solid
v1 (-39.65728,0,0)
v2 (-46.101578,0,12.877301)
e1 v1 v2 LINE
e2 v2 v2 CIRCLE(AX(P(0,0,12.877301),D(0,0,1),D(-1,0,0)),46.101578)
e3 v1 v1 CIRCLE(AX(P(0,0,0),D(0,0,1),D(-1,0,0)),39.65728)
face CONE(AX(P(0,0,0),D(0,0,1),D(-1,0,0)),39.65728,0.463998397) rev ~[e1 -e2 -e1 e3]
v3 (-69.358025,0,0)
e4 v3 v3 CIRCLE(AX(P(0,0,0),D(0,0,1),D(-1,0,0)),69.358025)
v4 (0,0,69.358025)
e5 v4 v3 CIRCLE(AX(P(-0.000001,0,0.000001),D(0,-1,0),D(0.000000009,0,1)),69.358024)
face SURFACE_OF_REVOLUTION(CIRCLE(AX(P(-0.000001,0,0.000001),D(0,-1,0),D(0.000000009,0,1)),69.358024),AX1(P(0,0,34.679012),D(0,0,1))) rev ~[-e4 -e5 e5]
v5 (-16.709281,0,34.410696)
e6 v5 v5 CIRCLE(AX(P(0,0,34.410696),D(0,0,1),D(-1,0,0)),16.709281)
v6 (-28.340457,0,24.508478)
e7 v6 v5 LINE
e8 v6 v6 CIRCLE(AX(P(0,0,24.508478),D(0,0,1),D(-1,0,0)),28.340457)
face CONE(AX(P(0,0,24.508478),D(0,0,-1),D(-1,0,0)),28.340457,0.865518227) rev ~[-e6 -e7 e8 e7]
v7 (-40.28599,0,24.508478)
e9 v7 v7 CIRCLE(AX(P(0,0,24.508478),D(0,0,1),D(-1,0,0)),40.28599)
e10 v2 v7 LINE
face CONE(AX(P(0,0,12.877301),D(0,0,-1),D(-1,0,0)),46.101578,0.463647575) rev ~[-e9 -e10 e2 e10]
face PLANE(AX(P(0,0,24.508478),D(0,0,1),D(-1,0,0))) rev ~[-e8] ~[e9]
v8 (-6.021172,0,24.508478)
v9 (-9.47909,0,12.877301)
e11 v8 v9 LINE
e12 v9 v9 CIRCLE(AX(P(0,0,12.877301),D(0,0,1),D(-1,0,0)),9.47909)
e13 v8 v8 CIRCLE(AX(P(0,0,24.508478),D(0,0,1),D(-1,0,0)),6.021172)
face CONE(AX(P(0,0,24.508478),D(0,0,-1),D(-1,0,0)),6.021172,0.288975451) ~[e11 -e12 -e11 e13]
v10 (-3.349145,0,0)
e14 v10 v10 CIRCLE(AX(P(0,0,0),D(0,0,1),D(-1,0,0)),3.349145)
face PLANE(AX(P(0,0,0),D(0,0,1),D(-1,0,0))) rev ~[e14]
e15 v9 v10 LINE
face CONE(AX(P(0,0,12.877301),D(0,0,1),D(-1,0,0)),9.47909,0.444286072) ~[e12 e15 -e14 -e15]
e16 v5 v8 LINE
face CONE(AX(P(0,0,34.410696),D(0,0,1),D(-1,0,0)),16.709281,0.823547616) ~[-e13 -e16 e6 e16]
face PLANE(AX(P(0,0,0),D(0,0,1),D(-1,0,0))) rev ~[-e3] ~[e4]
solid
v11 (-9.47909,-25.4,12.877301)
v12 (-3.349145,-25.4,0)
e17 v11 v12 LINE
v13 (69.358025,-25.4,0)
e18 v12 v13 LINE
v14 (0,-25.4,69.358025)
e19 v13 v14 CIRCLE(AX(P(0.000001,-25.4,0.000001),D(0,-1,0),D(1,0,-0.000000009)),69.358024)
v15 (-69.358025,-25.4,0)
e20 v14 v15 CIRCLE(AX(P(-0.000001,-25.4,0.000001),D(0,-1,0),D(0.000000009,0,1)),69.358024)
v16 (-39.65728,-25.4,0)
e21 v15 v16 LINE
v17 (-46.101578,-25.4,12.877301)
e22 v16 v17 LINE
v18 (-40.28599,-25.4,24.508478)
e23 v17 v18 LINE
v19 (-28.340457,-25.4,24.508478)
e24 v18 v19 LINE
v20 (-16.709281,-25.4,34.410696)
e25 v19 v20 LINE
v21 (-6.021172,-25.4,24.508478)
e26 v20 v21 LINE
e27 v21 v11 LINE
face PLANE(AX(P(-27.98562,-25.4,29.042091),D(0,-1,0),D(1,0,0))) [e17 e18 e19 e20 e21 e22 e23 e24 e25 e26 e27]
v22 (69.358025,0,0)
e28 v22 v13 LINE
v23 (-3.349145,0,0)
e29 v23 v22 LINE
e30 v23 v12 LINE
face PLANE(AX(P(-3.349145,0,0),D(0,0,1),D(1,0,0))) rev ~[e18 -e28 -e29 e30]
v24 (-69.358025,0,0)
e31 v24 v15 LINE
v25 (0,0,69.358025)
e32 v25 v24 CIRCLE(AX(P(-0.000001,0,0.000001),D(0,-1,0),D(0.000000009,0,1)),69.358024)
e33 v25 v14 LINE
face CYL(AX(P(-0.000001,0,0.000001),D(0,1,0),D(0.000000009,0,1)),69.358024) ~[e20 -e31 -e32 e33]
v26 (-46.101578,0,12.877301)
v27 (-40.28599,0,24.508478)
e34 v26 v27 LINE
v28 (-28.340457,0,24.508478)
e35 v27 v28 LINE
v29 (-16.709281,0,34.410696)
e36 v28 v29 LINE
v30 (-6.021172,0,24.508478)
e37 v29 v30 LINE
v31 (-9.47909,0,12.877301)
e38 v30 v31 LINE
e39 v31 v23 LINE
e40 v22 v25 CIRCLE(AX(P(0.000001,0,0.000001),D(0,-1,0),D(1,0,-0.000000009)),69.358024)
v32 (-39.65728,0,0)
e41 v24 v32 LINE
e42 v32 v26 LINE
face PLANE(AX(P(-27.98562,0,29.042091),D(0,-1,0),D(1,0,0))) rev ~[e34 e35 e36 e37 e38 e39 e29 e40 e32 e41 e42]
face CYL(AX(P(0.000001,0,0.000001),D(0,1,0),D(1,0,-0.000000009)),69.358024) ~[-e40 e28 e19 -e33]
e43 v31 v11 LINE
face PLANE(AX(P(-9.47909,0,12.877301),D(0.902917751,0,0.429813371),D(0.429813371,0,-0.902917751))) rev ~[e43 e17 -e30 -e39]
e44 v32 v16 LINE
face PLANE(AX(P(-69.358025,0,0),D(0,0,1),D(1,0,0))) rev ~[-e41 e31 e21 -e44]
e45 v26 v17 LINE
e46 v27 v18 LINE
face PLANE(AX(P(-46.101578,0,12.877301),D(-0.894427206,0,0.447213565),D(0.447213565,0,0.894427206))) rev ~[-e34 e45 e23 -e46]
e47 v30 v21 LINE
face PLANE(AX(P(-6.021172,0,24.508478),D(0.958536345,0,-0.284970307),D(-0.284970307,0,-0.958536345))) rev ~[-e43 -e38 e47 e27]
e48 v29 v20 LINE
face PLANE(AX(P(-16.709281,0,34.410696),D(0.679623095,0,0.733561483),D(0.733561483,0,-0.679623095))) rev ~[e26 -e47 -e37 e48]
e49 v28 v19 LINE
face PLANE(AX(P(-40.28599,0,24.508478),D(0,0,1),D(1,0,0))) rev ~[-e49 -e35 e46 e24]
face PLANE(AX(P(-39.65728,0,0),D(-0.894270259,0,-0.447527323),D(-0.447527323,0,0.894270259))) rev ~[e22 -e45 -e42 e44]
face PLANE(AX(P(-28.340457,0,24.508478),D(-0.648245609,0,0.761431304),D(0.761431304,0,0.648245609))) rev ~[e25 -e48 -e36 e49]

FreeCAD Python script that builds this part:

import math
import FreeCAD as App
import Part
import Sketcher
Q = App.Units.Quantity

doc = App.newDocument("Part")
body = doc.addObject("PartDesign::Body", "Body")

sketch1 = body.newObject("Sketcher::SketchObject", "Sketch")
sketch1.AttachmentSupport = (doc.getObject("XZ_Plane"), [""])
sketch1.MapMode = "FlatFace"
sketch1.addGeometry(Part.LineSegment(App.Vector(0, 0, 0), App.Vector(0, 69.4, 0)), False)
sketch1.addGeometry(Part.ArcOfCircle(Part.Circle(App.Vector(0, 0, 0), App.Vector(0, 0, 1), 69.4), math.radians(90), math.radians(180)), False)
sketch1.addGeometry(Part.LineSegment(App.Vector(-69.4, 0, 0), App.Vector(-39.7, 0, 0)), False)
sketch1.addGeometry(Part.LineSegment(App.Vector(-39.7, 0, 0), App.Vector(-46.1, 12.9, 0)), False)
sketch1.addGeometry(Part.LineSegment(App.Vector(-46.1, 12.9, 0), App.Vector(-40.3, 24.5, 0)), False)
sketch1.addGeometry(Part.LineSegment(App.Vector(-40.3, 24.5, 0), App.Vector(-28.3, 24.5, 0)), False)
sketch1.addGeometry(Part.LineSegment(App.Vector(-28.3, 24.5, 0), App.Vector(-16.7, 34.4, 0)), False)
sketch1.addGeometry(Part.LineSegment(App.Vector(-16.7, 34.4, 0), App.Vector(-6, 24.5, 0)), False)
sketch1.addGeometry(Part.LineSegment(App.Vector(-6, 24.5, 0), App.Vector(-9.5, 12.9, 0)), False)
sketch1.addGeometry(Part.LineSegment(App.Vector(-9.5, 12.9, 0), App.Vector(-3.3, 0, 0)), False)
sketch1.addGeometry(Part.LineSegment(App.Vector(-3.3, 0, 0), App.Vector(0, 0, 0)), False)
sketch1.addConstraint(Sketcher.Constraint("Coincident", 0, 2, 1, 1))
sketch1.addConstraint(Sketcher.Constraint("Coincident", 1, 2, 2, 1))
sketch1.addConstraint(Sketcher.Constraint("Coincident", 2, 2, 3, 1))
sketch1.addConstraint(Sketcher.Constraint("Coincident", 3, 2, 4, 1))
sketch1.addConstraint(Sketcher.Constraint("Coincident", 4, 2, 5, 1))
sketch1.addConstraint(Sketcher.Constraint("Coincident", 5, 2, 6, 1))
sketch1.addConstraint(Sketcher.Constraint("Coincident", 6, 2, 7, 1))
sketch1.addConstraint(Sketcher.Constraint("Coincident", 7, 2, 8, 1))
sketch1.addConstraint(Sketcher.Constraint("Coincident", 8, 2, 9, 1))
sketch1.addConstraint(Sketcher.Constraint("Coincident", 9, 2, 10, 1))
sketch1.addConstraint(Sketcher.Constraint("Coincident", 10, 2, 0, 1))
sketch1.addConstraint(Sketcher.Constraint("Vertical", 0))
sketch1.addConstraint(Sketcher.Constraint("Horizontal", 2))
sketch1.addConstraint(Sketcher.Constraint("Horizontal", 5))
sketch1.addConstraint(Sketcher.Constraint("Horizontal", 10))
sketch1.addConstraint(Sketcher.Constraint("Coincident", 1, 3, -1, 1))
sketch1.addConstraint(Sketcher.Constraint("Coincident", 10, 2, -1, 1))
sketch1.addConstraint(Sketcher.Constraint("PointOnObject", 1, 2, -1))
sketch1.addConstraint(Sketcher.Constraint("Horizontal", 5, 2, 7, 2))
sketch1.addConstraint(Sketcher.Constraint("Horizontal", 3, 2, 8, 2))
sketch1.addConstraint(Sketcher.Constraint("Radius", 1, 69.358024))
sketch1.addConstraint(Sketcher.Constraint("DistanceY", -1, 1, 3, 2, 12.877301))
sketch1.addConstraint(Sketcher.Constraint("DistanceX", 3, 2, 2, 2, 6.444298))
sketch1.addConstraint(Sketcher.Constraint("Distance", 4, 13.004051))
sketch1.addConstraint(Sketcher.Constraint("Distance", 6, 15.275411))
sketch1.addConstraint(Sketcher.Constraint("Distance", 7, 14.570161))
sketch1.addConstraint(Sketcher.Constraint("Distance", 8, 12.13431))
sketch1.addConstraint(Sketcher.Constraint("DistanceX", 2, 1, 2, 2, 29.700745))
sketch1.addConstraint(Sketcher.Constraint("DistanceX", 5, 1, 5, 2, 11.945533))
sketch1.addConstraint(Sketcher.Constraint("DistanceX", 10, 1, 10, 2, 3.349145))
sketch1.addConstraint(Sketcher.Constraint("DistanceX", 4, 2, -1, 1, 40.28599))
sketch1.addConstraint(Sketcher.Constraint("DistanceX", 6, 2, -1, 1, 16.709281))
revolution = body.newObject("PartDesign::Revolution", "Revolution")
revolution.Profile = sketch1
revolution.ReferenceAxis = (sketch1, ["V_Axis"])
revolution.Angle = 360
body2 = doc.addObject("PartDesign::Body", "Body001")

sketch2 = body2.newObject("Sketcher::SketchObject", "Sketch001")
sketch2.AttachmentSupport = (doc.getObject("XZ_Plane001"), [""])
sketch2.MapMode = "FlatFace"
sketch2.addGeometry(Part.ArcOfCircle(Part.Circle(App.Vector(0, 0, 0), App.Vector(0, 0, 1), 69), math.radians(90), math.radians(180)), False)
sketch2.addGeometry(Part.LineSegment(App.Vector(-69, 0, 0), App.Vector(-40, 0, 0)), False)
sketch2.addGeometry(Part.LineSegment(App.Vector(-40, 0, 0), App.Vector(-46, 13, 0)), False)
sketch2.addGeometry(Part.LineSegment(App.Vector(-46, 13, 0), App.Vector(-40, 25, 0)), False)
sketch2.addGeometry(Part.LineSegment(App.Vector(-40, 25, 0), App.Vector(-28, 25, 0)), False)
sketch2.addGeometry(Part.LineSegment(App.Vector(-28, 25, 0), App.Vector(-17, 34, 0)), False)
sketch2.addGeometry(Part.LineSegment(App.Vector(-17, 34, 0), App.Vector(-6, 25, 0)), False)
sketch2.addGeometry(Part.LineSegment(App.Vector(-6, 25, 0), App.Vector(-9, 13, 0)), False)
sketch2.addGeometry(Part.LineSegment(App.Vector(-9, 13, 0), App.Vector(-3, 0, 0)), False)
sketch2.addGeometry(Part.LineSegment(App.Vector(-3, 0, 0), App.Vector(69, 0, 0)), False)
sketch2.addGeometry(Part.ArcOfCircle(Part.Circle(App.Vector(0, 0, 0), App.Vector(0, 0, 1), 69), math.radians(0), math.radians(90)), False)
sketch2.addConstraint(Sketcher.Constraint("Coincident", 0, 2, 1, 1))
sketch2.addConstraint(Sketcher.Constraint("Coincident", 1, 2, 2, 1))
sketch2.addConstraint(Sketcher.Constraint("Coincident", 2, 2, 3, 1))
sketch2.addConstraint(Sketcher.Constraint("Coincident", 3, 2, 4, 1))
sketch2.addConstraint(Sketcher.Constraint("Coincident", 4, 2, 5, 1))
sketch2.addConstraint(Sketcher.Constraint("Coincident", 5, 2, 6, 1))
sketch2.addConstraint(Sketcher.Constraint("Coincident", 6, 2, 7, 1))
sketch2.addConstraint(Sketcher.Constraint("Coincident", 7, 2, 8, 1))
sketch2.addConstraint(Sketcher.Constraint("Coincident", 8, 2, 9, 1))
sketch2.addConstraint(Sketcher.Constraint("Coincident", 9, 2, 10, 1))
sketch2.addConstraint(Sketcher.Constraint("Tangent", 10, 2, 0, 1))
sketch2.addConstraint(Sketcher.Constraint("Horizontal", 1))
sketch2.addConstraint(Sketcher.Constraint("Horizontal", 4))
sketch2.addConstraint(Sketcher.Constraint("Horizontal", 9))
sketch2.addConstraint(Sketcher.Constraint("Coincident", 0, 3, -1, 1))
sketch2.addConstraint(Sketcher.Constraint("Equal", 0, 10))
sketch2.addConstraint(Sketcher.Constraint("PointOnObject", 0, 2, -1))
sketch2.addConstraint(Sketcher.Constraint("PointOnObject", 8, 2, -1))
sketch2.addConstraint(Sketcher.Constraint("PointOnObject", 10, 2, -2))
sketch2.addConstraint(Sketcher.Constraint("Horizontal", 4, 2, 6, 2))
sketch2.addConstraint(Sketcher.Constraint("Horizontal", 2, 2, 7, 2))
sketch2.addConstraint(Sketcher.Constraint("Radius", 0, 69.358024))
sketch2.addConstraint(Sketcher.Constraint("DistanceX", 9, 1, 9, 2, 72.70717))
sketch2.addConstraint(Sketcher.Constraint("DistanceY", -1, 1, 2, 2, 12.877301))
sketch2.addConstraint(Sketcher.Constraint("DistanceX", 2, 2, 1, 2, 6.444298))
sketch2.addConstraint(Sketcher.Constraint("Distance", 3, 13.004051))
sketch2.addConstraint(Sketcher.Constraint("Distance", 5, 15.275411))
sketch2.addConstraint(Sketcher.Constraint("Distance", 6, 14.570161))
sketch2.addConstraint(Sketcher.Constraint("Distance", 7, 12.13431))
sketch2.addConstraint(Sketcher.Constraint("DistanceX", 1, 1, 1, 2, 29.700745))
sketch2.addConstraint(Sketcher.Constraint("DistanceX", 4, 1, 4, 2, 11.945533))
sketch2.addConstraint(Sketcher.Constraint("DistanceX", 3, 2, -1, 1, 40.28599))
sketch2.addConstraint(Sketcher.Constraint("DistanceX", 5, 2, -1, 1, 16.709281))
pad1 = body2.newObject("PartDesign::Pad", "Pad")
pad1.Profile = sketch2
pad1.Length = Q("1 in")

doc.recompute()
